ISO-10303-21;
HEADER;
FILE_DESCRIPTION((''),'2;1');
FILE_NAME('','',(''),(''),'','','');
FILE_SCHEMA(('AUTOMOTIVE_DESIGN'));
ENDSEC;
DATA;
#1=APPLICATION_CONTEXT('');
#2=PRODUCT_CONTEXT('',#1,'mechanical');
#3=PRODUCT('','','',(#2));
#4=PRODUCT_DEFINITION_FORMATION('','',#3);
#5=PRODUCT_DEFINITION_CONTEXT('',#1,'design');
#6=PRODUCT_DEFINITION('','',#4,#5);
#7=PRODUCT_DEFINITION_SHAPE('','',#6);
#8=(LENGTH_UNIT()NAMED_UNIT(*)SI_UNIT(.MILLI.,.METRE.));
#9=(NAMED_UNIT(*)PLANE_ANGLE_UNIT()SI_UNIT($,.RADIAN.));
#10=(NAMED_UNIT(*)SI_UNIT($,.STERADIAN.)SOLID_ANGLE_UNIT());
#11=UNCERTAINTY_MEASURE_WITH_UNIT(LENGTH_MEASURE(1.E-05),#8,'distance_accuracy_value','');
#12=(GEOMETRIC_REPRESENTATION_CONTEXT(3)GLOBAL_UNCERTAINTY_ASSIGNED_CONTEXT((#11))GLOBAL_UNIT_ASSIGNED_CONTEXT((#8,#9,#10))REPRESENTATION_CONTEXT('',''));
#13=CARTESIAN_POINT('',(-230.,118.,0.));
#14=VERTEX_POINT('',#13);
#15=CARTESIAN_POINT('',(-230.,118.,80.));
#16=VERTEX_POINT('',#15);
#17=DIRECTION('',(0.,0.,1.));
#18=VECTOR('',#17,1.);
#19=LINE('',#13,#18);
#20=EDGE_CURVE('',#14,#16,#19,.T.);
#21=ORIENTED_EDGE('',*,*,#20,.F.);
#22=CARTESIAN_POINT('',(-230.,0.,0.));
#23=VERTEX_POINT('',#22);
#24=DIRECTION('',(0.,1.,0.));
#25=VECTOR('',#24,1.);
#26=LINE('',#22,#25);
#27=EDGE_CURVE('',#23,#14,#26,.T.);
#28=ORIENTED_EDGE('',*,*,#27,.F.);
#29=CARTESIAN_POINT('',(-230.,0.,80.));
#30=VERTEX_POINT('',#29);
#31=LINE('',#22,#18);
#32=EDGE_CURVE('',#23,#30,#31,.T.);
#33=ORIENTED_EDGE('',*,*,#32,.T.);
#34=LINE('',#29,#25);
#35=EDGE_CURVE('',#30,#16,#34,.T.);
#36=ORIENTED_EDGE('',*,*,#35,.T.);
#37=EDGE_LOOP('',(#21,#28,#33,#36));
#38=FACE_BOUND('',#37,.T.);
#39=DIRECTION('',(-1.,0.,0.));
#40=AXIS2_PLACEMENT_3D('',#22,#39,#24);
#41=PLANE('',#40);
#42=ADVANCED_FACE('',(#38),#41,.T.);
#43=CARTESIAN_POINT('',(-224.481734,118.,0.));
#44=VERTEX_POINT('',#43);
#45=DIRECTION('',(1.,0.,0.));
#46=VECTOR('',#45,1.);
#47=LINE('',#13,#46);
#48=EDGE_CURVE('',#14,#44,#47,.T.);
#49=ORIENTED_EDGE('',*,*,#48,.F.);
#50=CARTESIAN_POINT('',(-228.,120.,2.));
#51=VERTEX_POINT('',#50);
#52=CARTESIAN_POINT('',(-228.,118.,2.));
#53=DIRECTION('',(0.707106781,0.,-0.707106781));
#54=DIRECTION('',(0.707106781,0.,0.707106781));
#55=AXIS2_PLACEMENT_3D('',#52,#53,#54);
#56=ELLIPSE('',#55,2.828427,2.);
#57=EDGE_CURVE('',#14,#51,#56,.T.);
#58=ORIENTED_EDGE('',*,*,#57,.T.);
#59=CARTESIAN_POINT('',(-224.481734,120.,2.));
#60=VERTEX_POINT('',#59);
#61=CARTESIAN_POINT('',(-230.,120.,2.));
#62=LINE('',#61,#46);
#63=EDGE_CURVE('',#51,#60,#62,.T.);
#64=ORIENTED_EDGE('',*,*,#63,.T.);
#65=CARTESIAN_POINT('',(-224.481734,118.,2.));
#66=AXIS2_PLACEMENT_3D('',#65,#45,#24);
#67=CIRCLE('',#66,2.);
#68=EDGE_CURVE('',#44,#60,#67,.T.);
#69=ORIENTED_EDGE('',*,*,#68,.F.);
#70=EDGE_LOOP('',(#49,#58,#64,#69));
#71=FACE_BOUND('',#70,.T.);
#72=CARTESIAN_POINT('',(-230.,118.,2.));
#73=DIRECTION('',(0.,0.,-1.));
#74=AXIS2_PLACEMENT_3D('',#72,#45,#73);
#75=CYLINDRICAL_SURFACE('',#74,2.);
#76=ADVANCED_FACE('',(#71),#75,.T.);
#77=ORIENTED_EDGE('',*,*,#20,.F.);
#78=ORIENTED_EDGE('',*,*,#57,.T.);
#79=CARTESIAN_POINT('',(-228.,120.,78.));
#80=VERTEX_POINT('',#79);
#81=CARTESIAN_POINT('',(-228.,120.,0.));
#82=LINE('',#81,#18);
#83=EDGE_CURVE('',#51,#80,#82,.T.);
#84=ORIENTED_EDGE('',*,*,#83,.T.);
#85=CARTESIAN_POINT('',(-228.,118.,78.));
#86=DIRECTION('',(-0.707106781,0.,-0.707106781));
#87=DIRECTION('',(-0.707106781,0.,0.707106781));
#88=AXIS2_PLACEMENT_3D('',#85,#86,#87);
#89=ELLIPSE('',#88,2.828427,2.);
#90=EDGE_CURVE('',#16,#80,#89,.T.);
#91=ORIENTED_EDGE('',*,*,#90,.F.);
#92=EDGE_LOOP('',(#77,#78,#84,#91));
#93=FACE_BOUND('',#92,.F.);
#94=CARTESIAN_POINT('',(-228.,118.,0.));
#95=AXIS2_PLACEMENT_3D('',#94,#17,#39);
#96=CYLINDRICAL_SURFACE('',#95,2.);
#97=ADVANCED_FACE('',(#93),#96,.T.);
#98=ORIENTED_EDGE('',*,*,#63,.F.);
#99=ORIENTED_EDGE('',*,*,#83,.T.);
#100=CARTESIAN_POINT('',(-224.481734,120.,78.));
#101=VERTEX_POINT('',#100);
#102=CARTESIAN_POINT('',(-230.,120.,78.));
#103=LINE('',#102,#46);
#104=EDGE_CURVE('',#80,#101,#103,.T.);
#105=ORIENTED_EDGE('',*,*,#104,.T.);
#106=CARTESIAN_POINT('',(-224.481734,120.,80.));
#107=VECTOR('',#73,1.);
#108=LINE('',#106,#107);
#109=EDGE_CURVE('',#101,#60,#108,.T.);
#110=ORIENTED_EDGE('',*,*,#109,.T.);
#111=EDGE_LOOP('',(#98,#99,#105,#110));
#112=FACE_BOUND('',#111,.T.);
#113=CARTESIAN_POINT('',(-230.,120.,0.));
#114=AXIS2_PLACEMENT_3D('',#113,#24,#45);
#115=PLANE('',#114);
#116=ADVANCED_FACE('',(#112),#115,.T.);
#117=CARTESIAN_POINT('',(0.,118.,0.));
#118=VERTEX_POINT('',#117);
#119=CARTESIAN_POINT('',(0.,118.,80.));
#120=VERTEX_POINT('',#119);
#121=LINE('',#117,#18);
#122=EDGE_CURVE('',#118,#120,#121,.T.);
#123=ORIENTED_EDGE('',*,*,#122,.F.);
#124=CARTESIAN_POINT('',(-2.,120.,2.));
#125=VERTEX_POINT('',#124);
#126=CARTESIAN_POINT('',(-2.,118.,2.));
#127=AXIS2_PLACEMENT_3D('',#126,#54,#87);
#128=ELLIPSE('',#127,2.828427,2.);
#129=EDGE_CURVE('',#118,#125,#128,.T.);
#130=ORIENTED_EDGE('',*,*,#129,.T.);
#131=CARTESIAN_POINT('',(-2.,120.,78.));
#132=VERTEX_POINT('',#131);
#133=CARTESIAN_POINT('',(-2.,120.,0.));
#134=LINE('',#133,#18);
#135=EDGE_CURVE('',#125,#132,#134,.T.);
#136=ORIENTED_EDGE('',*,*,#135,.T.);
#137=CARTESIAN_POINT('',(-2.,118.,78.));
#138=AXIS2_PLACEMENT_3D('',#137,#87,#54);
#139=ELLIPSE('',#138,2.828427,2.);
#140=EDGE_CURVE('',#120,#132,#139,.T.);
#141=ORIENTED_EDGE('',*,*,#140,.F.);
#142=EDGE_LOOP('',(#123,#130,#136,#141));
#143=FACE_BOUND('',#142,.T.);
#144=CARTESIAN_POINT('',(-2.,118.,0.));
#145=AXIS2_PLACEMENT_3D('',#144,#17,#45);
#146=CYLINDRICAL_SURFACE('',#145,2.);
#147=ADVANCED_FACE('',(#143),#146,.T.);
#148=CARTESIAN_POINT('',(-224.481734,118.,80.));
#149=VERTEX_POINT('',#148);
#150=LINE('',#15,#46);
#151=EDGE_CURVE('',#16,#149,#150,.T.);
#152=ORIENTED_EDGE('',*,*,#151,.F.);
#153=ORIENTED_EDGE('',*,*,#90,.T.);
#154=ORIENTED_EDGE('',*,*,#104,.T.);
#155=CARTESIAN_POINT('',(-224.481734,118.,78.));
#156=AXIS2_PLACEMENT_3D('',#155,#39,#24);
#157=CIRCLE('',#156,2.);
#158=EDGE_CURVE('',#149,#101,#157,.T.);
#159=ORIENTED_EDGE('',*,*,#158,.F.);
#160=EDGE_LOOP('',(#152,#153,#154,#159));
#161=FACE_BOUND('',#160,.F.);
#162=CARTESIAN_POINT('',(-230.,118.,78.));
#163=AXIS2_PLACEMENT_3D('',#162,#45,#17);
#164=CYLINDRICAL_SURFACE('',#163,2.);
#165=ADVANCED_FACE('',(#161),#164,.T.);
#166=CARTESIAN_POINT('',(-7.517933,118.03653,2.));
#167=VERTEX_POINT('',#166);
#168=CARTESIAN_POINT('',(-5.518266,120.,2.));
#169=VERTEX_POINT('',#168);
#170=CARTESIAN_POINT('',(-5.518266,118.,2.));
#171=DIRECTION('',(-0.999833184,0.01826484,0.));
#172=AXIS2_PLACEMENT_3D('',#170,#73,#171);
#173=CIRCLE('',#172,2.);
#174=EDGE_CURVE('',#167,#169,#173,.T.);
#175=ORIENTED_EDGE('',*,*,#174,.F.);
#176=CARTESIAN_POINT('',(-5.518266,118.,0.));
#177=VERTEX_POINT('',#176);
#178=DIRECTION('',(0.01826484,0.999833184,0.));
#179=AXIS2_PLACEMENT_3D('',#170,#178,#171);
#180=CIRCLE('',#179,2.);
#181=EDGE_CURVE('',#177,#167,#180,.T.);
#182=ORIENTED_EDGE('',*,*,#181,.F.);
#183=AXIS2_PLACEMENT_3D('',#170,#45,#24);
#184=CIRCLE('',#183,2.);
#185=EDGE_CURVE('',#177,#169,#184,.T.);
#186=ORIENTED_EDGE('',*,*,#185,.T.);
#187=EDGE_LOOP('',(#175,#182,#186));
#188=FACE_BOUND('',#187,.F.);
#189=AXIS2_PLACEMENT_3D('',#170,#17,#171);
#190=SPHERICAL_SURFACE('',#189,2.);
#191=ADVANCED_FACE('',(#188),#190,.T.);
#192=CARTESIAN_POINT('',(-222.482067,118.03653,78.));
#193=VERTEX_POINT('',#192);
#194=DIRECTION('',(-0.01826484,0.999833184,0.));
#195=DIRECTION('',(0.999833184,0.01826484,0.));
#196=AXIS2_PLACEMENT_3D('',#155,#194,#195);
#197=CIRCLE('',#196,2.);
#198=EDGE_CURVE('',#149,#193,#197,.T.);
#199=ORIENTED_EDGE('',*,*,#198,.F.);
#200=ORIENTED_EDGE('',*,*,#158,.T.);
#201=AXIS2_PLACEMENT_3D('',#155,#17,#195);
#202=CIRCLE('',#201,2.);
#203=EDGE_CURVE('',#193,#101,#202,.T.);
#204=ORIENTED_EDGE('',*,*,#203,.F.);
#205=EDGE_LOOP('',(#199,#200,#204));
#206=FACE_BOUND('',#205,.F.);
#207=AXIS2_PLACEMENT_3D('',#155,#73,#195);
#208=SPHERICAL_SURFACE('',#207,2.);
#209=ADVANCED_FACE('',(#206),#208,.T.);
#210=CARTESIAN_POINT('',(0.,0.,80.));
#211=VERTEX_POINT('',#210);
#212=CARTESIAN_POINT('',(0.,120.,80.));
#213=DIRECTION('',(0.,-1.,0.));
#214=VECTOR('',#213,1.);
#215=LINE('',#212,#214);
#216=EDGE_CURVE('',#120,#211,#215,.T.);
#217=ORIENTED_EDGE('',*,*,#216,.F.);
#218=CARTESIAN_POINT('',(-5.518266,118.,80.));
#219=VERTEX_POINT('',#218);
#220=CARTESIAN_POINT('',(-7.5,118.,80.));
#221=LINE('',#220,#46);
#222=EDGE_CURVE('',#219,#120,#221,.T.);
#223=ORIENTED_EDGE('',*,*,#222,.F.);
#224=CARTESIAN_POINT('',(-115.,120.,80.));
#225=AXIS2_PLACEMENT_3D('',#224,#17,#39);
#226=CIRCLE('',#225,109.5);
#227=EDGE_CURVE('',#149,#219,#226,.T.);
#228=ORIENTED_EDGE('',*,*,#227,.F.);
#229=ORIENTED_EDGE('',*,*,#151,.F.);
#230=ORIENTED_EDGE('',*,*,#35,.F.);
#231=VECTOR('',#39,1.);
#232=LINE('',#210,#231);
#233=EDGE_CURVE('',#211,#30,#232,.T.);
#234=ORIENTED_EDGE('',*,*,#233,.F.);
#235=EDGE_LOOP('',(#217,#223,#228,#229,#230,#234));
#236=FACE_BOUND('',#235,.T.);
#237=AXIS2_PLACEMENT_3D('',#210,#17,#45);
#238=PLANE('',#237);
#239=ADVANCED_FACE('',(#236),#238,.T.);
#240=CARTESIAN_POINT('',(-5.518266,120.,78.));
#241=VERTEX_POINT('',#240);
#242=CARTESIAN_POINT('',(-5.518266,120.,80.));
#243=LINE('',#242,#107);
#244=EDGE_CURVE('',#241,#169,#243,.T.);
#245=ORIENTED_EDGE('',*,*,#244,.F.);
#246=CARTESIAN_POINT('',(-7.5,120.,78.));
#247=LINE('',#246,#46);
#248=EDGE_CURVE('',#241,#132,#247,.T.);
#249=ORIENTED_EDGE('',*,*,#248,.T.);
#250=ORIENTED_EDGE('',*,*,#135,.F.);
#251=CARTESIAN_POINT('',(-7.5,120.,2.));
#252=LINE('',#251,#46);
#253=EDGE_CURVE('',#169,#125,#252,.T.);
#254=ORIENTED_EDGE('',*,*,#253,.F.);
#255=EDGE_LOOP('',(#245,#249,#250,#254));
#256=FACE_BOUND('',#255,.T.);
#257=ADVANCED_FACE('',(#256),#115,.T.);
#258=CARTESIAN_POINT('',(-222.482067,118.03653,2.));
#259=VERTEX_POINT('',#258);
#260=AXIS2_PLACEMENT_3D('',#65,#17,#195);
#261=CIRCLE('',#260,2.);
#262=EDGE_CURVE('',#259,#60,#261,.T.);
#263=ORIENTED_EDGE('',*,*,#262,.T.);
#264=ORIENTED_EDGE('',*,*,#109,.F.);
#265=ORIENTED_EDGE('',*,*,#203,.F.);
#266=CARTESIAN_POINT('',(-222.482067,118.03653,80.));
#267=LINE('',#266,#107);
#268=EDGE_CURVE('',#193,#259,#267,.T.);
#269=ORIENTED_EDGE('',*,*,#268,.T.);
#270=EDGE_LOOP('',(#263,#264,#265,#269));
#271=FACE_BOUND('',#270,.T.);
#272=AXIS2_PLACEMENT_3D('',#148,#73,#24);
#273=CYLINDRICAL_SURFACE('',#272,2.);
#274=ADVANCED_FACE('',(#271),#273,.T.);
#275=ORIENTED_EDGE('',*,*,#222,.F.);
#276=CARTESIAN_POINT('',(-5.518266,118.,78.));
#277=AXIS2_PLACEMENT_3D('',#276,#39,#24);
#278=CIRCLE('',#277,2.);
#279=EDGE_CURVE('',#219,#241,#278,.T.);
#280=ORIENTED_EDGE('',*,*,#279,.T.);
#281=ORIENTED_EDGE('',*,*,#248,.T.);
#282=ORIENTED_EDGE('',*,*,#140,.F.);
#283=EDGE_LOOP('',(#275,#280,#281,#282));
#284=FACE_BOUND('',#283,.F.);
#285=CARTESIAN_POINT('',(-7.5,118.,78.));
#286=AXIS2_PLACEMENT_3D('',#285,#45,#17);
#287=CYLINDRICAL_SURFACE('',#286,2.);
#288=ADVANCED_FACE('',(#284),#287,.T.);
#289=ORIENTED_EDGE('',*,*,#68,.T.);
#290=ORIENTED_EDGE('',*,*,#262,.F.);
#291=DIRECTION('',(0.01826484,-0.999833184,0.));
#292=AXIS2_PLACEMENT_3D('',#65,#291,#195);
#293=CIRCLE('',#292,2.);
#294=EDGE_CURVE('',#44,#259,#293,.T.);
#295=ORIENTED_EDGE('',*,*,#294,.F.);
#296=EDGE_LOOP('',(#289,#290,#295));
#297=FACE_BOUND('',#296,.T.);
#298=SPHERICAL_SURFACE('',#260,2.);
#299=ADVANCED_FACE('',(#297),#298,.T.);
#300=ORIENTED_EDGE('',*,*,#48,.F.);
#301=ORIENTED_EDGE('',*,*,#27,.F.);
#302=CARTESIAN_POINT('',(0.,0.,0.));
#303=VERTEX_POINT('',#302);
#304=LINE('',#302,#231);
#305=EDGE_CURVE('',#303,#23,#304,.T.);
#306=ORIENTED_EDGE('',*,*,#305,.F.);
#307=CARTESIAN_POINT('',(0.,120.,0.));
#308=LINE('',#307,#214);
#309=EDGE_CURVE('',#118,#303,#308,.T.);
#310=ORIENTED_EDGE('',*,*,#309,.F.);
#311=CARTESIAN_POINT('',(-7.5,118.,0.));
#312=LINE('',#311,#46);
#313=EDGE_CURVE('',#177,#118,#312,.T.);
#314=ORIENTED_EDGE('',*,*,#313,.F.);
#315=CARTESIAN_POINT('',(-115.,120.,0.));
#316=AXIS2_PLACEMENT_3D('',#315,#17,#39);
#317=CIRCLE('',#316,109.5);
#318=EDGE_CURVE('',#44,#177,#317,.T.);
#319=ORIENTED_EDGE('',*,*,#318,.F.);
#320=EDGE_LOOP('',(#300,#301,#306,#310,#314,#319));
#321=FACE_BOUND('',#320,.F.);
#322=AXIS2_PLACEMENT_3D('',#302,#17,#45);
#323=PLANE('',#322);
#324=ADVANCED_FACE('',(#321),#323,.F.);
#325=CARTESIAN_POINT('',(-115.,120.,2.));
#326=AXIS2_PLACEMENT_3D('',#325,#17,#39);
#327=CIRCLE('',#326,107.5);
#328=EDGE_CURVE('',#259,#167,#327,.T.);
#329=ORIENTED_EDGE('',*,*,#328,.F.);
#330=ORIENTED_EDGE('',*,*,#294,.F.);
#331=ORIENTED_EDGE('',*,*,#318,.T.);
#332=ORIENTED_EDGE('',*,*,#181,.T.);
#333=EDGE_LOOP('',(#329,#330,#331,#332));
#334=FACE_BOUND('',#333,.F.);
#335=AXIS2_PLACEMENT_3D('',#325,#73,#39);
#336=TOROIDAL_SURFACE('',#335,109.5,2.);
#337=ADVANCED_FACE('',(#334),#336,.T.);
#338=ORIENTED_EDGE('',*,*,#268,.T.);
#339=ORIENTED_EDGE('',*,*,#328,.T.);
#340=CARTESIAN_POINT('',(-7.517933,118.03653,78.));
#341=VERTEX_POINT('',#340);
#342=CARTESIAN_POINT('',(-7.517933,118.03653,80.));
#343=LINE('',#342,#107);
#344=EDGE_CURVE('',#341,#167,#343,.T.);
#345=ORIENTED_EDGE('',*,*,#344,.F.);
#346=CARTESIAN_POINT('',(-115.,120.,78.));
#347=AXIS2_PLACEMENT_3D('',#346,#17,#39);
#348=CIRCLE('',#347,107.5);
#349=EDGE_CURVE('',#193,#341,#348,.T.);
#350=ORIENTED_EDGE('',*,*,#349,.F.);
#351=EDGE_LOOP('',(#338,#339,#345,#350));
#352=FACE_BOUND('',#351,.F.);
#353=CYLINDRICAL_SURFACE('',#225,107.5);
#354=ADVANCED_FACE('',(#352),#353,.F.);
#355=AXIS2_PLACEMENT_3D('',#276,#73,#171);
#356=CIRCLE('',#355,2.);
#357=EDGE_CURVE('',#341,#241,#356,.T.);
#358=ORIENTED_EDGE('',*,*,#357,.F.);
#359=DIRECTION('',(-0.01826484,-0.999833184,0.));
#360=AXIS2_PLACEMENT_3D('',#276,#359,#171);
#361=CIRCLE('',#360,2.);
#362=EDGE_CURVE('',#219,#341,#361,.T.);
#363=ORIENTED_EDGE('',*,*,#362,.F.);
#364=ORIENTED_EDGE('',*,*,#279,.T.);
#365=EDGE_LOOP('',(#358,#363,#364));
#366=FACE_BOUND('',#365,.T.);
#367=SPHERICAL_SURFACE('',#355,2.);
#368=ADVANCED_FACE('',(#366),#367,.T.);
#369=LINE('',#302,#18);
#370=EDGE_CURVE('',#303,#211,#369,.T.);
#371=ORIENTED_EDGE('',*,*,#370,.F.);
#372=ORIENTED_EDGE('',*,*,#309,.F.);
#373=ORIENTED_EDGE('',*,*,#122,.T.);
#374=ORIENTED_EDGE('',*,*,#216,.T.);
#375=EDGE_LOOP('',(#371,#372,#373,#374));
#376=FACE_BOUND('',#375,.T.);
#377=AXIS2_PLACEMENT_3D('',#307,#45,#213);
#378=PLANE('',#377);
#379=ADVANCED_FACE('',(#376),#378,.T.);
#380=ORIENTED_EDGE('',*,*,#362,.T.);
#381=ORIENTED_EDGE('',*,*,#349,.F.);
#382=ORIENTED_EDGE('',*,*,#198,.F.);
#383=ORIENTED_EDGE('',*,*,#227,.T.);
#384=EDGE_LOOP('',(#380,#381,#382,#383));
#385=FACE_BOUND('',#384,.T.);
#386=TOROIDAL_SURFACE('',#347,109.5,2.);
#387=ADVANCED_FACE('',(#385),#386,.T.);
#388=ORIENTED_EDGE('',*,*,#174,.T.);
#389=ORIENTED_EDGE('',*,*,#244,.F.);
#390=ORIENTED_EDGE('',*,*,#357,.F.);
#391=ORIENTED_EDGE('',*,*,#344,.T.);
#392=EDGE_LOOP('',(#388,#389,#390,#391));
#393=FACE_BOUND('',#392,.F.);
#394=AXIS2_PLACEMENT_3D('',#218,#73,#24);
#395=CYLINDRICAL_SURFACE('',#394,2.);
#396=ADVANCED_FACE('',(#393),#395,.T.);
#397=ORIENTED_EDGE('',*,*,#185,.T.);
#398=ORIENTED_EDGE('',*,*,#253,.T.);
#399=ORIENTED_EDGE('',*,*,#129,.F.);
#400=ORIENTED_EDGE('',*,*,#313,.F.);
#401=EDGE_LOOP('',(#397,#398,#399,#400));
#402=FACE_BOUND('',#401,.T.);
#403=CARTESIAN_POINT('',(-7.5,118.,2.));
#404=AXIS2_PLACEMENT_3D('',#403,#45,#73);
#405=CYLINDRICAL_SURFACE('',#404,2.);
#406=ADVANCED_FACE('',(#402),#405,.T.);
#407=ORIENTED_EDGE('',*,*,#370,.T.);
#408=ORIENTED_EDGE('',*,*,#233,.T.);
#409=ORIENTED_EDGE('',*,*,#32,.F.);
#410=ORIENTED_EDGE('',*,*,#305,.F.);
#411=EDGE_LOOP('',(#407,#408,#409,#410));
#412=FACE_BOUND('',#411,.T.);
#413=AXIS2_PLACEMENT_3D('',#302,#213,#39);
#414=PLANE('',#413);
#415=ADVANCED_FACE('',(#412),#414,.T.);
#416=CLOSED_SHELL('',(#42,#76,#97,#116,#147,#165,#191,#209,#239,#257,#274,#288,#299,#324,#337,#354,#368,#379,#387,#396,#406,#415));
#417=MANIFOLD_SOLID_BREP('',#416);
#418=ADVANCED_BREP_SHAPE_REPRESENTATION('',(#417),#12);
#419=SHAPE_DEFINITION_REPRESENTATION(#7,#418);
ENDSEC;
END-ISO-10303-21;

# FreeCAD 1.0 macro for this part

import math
import FreeCAD as App
import Part
import Sketcher
from FreeCAD import Vector


def edges_at(feature, points):
    """Names of the edges that pass closest to the given points."""
    edges = feature.Shape.Edges
    near = lambda p: min(range(len(edges)), key=lambda i: edges[i].distToShape(Part.Vertex(*p))[0])
    return sorted({f"Edge{near(p) + 1}" for p in points})

doc = App.newDocument("Part")
body = doc.addObject("PartDesign::Body", "Body")

sketch1 = body.newObject("Sketcher::SketchObject", "Sketch")
sketch1.AttachmentSupport = (doc.getObject("XY_Plane"), [""])
sketch1.MapMode = "FlatFace"
sketch1.addGeometry([
    Part.LineSegment(Vector(-230, 0, 0), Vector(0, 0, 0)),
    Part.LineSegment(Vector(0, 0, 0), Vector(0, 120, 0)),
    Part.LineSegment(Vector(0, 120, 0), Vector(-230, 120, 0)),
    Part.LineSegment(Vector(-230, 120, 0), Vector(-230, 0, 0)),
], False)
sketch1.addConstraint([
    Sketcher.Constraint("Coincident", 0, 2, 1, 1),
    Sketcher.Constraint("Coincident", 1, 2, 2, 1),
    Sketcher.Constraint("Coincident", 2, 2, 3, 1),
    Sketcher.Constraint("Coincident", 3, 2, 0, 1),
    Sketcher.Constraint("Horizontal", 0),
    Sketcher.Constraint("Vertical", 1),
    Sketcher.Constraint("Horizontal", 2),
    Sketcher.Constraint("Vertical", 3),
    Sketcher.Constraint("Coincident", 0, 2, -1, 1),
    Sketcher.Constraint("DistanceX", 0, 1, 0, 2, 230.0),
    Sketcher.Constraint("DistanceY", 1, 1, 1, 2, 120.0),
])
pad1 = body.newObject("PartDesign::Pad", "Pad")
pad1.Profile = sketch1
pad1.Length = 80

sketch2 = body.newObject("Sketcher::SketchObject", "Sketch001")
sketch2.AttachmentSupport = (doc.getObject("XY_Plane"), [""])
sketch2.MapMode = "FlatFace"
sketch2.AttachmentOffset = App.Placement(Vector(0, 0, 80), App.Rotation())
sketch2.addGeometry([
    Part.LineSegment(Vector(-8, 120, 0), Vector(-222, 120, 0)),
    Part.ArcOfCircle(Part.Circle(Vector(-115, 120, 0), Vector(0, 0, 1), 108), math.radians(180), math.radians(360)),
], False)
sketch2.addConstraint([
    Sketcher.Constraint("Coincident", 0, 1, 1, 2),
    Sketcher.Constraint("Coincident", 1, 1, 0, 2),
    Sketcher.Constraint("Horizontal", 0),
    Sketcher.Constraint("Horizontal", 1, 3, 0, 1),
    Sketcher.Constraint("Radius", 1, 107.5),
    Sketcher.Constraint("DistanceX", 1, 3, -1, 1, 115.0),
    Sketcher.Constraint("DistanceY", -1, 1, 1, 3, 120.0),
])
pocket1 = body.newObject("PartDesign::Pocket", "Pocket")
pocket1.Profile = sketch2
pocket1.Length = 170
doc.recompute()

fillet = body.newObject("PartDesign::Fillet", "Fillet")
fillet.Base = (pocket1, edges_at(pocket1, [
    (-222.5, 120, 40),
    (-230, 120, 40),
    (-7.5, 120, 40),
    (0, 120, 40),
    (-115, 12.5, 80),
    (-115, 12.5, 0),
    (-3.75, 120, 80),
    (-3.75, 120, 0),
    (-226.25, 120, 80),
    (-226.25, 120, 0),
]))
fillet.Radius = 2

doc.recompute()
